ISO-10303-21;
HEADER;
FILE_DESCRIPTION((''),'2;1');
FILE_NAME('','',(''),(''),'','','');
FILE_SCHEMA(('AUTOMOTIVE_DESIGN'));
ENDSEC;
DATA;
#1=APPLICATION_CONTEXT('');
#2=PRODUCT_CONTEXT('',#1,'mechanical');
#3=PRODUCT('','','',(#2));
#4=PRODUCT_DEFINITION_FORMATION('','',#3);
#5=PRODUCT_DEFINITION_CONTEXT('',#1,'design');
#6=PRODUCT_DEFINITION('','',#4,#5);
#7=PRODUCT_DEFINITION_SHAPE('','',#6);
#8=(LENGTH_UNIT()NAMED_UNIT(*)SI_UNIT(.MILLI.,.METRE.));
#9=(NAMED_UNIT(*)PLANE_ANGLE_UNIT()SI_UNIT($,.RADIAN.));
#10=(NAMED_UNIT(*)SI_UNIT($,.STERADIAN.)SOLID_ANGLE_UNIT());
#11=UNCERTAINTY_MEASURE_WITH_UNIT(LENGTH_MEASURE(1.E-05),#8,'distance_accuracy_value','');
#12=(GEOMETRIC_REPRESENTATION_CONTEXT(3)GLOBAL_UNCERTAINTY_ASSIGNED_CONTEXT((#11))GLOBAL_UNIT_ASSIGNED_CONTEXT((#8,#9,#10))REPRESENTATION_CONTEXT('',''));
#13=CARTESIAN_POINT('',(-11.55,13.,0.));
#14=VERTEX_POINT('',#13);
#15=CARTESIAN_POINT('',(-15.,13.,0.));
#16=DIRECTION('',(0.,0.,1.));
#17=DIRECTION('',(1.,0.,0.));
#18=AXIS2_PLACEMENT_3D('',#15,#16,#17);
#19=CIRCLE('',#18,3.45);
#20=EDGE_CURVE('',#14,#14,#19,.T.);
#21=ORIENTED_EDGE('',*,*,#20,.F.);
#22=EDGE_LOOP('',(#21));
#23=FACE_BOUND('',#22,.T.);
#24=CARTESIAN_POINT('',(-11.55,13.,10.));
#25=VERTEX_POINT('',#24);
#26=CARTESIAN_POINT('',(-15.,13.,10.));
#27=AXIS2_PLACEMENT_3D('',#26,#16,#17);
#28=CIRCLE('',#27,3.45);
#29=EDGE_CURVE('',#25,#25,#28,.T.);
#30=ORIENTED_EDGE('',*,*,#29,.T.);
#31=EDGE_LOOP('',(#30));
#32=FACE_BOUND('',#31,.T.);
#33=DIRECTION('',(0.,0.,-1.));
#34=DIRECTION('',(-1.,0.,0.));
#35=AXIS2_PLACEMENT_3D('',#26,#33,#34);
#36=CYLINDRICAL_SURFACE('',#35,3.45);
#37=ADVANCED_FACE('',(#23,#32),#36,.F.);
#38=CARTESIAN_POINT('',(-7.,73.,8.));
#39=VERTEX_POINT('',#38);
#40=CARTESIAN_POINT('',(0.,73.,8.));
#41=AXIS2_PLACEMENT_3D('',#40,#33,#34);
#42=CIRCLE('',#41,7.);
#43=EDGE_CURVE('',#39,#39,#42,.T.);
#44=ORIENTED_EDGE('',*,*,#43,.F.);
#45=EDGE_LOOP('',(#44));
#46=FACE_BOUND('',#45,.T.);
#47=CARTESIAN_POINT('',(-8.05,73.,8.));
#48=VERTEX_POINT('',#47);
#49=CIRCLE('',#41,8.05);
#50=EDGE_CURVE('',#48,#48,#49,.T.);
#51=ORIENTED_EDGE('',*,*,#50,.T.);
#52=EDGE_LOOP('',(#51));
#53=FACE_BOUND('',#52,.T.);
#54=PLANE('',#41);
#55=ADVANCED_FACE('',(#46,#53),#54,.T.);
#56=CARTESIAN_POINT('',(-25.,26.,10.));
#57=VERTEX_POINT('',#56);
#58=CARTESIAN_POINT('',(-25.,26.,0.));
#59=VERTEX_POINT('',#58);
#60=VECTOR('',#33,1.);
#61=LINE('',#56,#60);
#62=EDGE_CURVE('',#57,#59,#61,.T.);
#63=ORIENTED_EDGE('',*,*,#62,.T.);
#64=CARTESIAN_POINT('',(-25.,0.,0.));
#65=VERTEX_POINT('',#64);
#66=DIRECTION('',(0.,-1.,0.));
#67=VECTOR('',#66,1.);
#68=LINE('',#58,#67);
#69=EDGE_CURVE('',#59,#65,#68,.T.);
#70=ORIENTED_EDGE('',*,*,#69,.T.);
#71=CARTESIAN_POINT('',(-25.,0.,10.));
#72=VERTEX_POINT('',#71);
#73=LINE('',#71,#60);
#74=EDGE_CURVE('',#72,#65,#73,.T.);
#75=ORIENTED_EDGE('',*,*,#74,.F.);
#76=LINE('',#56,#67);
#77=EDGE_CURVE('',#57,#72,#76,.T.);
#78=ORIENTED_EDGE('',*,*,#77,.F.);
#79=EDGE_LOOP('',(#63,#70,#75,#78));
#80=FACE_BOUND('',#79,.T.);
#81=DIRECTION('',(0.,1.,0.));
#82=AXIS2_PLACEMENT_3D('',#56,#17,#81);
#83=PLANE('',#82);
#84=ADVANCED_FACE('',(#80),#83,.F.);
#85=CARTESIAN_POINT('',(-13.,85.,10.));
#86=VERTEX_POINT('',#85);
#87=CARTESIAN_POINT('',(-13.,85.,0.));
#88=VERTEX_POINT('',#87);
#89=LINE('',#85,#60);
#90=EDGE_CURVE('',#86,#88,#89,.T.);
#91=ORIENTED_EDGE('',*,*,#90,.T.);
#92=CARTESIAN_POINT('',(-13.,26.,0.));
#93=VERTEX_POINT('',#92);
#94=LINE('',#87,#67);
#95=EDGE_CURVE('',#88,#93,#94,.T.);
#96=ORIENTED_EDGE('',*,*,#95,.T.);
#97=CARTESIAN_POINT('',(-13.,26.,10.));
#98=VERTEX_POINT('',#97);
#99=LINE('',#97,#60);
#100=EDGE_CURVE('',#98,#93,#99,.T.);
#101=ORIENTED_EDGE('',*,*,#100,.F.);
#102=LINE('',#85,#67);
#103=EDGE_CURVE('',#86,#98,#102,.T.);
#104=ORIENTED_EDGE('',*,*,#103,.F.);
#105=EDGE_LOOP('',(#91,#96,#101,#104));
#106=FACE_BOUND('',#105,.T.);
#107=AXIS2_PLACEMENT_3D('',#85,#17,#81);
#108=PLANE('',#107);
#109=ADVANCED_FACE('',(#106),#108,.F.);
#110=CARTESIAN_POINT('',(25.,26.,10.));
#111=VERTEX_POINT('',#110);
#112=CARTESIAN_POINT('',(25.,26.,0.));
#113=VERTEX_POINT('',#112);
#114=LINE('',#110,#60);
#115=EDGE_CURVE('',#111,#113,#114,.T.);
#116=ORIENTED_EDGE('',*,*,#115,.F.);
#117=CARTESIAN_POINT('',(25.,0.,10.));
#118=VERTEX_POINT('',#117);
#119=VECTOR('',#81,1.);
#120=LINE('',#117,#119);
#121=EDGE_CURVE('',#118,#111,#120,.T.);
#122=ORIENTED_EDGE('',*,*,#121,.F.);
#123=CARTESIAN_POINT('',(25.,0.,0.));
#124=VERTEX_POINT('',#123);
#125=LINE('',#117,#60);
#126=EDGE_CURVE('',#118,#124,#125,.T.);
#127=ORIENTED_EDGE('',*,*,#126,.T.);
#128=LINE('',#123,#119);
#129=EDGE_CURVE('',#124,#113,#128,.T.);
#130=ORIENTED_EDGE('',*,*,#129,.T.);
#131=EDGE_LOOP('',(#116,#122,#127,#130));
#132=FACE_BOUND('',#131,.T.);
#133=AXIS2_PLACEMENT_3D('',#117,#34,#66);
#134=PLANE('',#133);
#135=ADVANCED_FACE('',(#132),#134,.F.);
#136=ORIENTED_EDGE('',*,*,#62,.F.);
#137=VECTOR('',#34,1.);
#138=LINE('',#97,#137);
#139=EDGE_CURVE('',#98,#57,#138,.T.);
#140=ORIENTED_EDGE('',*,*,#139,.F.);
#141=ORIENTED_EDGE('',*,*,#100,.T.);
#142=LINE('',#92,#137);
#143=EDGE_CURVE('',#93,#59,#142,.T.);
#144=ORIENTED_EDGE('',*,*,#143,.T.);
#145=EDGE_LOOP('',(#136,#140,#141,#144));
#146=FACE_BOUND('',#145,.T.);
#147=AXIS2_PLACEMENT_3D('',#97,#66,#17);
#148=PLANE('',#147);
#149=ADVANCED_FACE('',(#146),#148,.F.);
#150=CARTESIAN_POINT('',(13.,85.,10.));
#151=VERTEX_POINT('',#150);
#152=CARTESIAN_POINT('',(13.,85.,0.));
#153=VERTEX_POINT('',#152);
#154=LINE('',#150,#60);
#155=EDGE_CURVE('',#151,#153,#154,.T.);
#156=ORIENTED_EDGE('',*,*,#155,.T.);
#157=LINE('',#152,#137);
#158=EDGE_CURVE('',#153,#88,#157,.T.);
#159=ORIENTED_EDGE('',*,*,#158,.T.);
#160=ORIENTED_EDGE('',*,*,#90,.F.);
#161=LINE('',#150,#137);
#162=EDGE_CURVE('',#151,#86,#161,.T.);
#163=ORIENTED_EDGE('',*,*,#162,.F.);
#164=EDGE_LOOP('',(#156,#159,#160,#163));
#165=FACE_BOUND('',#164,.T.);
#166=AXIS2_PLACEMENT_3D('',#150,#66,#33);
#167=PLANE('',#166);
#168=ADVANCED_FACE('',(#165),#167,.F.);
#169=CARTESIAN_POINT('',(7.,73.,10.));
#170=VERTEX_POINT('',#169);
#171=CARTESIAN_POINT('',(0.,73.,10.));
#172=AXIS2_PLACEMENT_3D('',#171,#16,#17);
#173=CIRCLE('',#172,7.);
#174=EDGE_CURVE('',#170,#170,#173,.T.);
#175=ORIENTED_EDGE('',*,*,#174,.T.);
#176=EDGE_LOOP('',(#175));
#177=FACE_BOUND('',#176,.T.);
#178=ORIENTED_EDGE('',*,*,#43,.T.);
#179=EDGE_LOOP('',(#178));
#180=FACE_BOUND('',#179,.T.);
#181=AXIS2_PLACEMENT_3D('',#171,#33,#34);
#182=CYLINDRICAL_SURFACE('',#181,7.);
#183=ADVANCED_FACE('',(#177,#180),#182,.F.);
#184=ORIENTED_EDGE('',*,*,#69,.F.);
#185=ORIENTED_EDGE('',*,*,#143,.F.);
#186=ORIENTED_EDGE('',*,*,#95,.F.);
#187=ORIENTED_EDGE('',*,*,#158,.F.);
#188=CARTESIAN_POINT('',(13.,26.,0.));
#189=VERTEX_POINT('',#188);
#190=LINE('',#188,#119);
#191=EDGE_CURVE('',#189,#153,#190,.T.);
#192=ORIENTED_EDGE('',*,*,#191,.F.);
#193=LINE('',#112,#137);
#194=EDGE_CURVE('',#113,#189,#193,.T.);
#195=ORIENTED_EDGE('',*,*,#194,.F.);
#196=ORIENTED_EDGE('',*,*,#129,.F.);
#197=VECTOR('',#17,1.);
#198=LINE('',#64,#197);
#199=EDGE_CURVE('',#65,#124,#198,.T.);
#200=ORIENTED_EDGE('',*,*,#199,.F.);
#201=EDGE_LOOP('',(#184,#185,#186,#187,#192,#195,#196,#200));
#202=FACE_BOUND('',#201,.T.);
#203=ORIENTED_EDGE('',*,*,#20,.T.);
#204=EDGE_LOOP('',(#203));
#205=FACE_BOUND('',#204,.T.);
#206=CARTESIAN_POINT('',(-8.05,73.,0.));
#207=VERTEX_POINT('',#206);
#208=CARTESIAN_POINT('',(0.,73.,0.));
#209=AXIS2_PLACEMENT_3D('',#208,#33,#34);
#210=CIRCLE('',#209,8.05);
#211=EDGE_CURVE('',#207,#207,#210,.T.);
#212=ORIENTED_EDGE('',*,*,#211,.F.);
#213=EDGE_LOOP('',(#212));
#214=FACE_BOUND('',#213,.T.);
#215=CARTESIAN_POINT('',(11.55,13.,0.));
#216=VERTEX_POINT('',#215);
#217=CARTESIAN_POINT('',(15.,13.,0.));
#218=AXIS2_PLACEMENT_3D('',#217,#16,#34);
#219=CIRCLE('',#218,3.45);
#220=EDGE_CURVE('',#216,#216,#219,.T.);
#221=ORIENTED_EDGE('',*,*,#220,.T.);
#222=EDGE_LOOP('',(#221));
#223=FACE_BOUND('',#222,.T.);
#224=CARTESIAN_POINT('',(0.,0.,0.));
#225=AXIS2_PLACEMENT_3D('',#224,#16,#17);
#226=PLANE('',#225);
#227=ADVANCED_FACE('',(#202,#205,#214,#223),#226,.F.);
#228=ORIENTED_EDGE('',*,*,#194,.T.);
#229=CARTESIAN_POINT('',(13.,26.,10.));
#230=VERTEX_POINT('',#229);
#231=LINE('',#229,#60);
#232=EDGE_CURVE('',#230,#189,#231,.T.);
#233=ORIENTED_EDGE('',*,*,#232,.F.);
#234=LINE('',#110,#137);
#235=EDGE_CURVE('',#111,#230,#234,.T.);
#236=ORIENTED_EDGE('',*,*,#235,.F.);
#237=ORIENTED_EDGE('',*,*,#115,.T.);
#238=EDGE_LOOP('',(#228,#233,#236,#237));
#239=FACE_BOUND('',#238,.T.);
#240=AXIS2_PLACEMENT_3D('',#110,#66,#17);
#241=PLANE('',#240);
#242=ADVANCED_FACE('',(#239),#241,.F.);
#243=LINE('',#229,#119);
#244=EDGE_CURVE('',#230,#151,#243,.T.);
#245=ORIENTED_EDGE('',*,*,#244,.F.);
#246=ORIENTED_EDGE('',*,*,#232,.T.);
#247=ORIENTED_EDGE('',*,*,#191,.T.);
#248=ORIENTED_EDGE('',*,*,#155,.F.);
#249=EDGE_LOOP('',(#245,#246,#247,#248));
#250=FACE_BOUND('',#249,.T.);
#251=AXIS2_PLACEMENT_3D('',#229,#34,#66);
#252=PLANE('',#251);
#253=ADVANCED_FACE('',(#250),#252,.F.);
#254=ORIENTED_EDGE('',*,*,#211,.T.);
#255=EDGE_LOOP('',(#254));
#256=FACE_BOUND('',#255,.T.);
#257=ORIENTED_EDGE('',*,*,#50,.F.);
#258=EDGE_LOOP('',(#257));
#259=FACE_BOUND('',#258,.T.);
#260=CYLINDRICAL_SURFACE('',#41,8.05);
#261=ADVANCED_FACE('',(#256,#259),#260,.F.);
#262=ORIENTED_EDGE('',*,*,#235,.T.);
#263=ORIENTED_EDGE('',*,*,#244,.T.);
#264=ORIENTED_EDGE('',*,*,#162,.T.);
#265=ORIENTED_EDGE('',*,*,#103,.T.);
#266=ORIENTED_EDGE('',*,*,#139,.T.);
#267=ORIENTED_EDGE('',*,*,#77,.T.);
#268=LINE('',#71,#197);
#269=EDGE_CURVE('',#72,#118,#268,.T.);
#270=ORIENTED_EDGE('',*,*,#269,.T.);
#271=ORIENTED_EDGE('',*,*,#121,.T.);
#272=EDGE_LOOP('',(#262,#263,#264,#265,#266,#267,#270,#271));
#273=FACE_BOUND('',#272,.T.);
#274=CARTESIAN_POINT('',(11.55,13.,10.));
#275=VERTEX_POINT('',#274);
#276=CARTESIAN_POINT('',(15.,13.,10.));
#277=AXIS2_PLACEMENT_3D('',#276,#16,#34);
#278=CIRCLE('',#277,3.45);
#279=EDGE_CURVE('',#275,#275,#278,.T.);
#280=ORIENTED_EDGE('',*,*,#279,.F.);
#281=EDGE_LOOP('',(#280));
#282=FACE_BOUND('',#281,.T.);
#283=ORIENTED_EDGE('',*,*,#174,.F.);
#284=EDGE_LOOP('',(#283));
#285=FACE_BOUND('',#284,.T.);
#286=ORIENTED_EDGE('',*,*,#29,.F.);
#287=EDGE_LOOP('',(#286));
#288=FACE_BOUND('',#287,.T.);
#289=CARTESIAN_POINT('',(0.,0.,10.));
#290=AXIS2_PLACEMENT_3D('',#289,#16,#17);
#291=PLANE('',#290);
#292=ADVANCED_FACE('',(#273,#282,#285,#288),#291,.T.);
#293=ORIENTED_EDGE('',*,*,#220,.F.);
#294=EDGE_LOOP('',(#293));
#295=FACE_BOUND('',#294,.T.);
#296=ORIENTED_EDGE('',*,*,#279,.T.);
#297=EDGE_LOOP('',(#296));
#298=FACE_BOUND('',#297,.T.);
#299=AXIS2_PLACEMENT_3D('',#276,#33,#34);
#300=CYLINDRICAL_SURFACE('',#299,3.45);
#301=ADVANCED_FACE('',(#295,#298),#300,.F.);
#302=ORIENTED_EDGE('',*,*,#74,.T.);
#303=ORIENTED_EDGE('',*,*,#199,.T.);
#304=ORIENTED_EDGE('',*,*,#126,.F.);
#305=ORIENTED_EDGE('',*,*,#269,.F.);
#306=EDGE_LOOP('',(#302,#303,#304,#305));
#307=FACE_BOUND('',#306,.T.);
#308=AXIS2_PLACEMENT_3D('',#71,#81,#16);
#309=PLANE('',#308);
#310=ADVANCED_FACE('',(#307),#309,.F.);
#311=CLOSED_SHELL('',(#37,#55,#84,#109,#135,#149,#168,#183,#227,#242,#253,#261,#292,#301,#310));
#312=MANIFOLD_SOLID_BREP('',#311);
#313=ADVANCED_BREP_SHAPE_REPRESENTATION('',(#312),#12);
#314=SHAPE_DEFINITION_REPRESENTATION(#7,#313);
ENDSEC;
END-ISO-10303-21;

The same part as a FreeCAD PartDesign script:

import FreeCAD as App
import Part
import Sketcher
Q = App.Units.Quantity

doc = App.newDocument("Part")
body = doc.addObject("PartDesign::Body", "Body")

# Sketch on XY plane
sketch1 = doc.addObject("Sketcher::SketchObject", "Sketch")
body.addObject(sketch1)
sketch1.AttachmentSupport = (doc.XY_Plane, [""])
sketch1.MapMode = "FlatFace"
sketch1.addGeometry(Part.LineSegment(App.Vector(-25, 0, 0), App.Vector(25, 0, 0)), False)
sketch1.addGeometry(Part.LineSegment(App.Vector(25, 0, 0), App.Vector(25, 26, 0)), False)
sketch1.addGeometry(Part.LineSegment(App.Vector(25, 26, 0), App.Vector(13, 26, 0)), False)
sketch1.addGeometry(Part.LineSegment(App.Vector(13, 26, 0), App.Vector(13, 85, 0)), False)
sketch1.addGeometry(Part.LineSegment(App.Vector(13, 85, 0), App.Vector(-13, 85, 0)), False)
sketch1.addGeometry(Part.LineSegment(App.Vector(-13, 85, 0), App.Vector(-13, 26, 0)), False)
sketch1.addGeometry(Part.LineSegment(App.Vector(-13, 26, 0), App.Vector(-25, 26, 0)), False)
sketch1.addGeometry(Part.LineSegment(App.Vector(-25, 26, 0), App.Vector(-25, 0, 0)), False)
sketch1.addGeometry(Part.Circle(App.Vector(-15, 13, 0), App.Vector(0, 0, 1), 3.5), False)
sketch1.addGeometry(Part.Circle(App.Vector(15, 13, 0), App.Vector(0, 0, 1), 3.5), False)
sketch1.addGeometry(Part.Circle(App.Vector(0, 73, 0), App.Vector(0, 0, 1), 7), False)
sketch1.addConstraint(Sketcher.Constraint("Coincident", 0, 2, 1, 1))
sketch1.addConstraint(Sketcher.Constraint("Coincident", 1, 2, 2, 1))
sketch1.addConstraint(Sketcher.Constraint("Coincident", 2, 2, 3, 1))
sketch1.addConstraint(Sketcher.Constraint("Coincident", 3, 2, 4, 1))
sketch1.addConstraint(Sketcher.Constraint("Coincident", 4, 2, 5, 1))
sketch1.addConstraint(Sketcher.Constraint("Coincident", 5, 2, 6, 1))
sketch1.addConstraint(Sketcher.Constraint("Coincident", 6, 2, 7, 1))
sketch1.addConstraint(Sketcher.Constraint("Coincident", 7, 2, 0, 1))
sketch1.addConstraint(Sketcher.Constraint("Horizontal", 0))
sketch1.addConstraint(Sketcher.Constraint("Vertical", 1))
sketch1.addConstraint(Sketcher.Constraint("Horizontal", 2))
sketch1.addConstraint(Sketcher.Constraint("Vertical", 3))
sketch1.addConstraint(Sketcher.Constraint("Horizontal", 4))
sketch1.addConstraint(Sketcher.Constraint("Vertical", 5))
sketch1.addConstraint(Sketcher.Constraint("Horizontal", 6))
sketch1.addConstraint(Sketcher.Constraint("Vertical", 7))
sketch1.addConstraint(Sketcher.Constraint("Equal", 8, 9))
sketch1.addConstraint(Sketcher.Constraint("Symmetric", 0, 2, 7, 2, -1, 1))
sketch1.addConstraint(Sketcher.Constraint("Symmetric", 8, 3, 9, 3, -2))
sketch1.addConstraint(Sketcher.Constraint("Symmetric", 2, 2, 5, 2, -2))
sketch1.addConstraint(Sketcher.Constraint("PointOnObject", 10, 3, -2))
sketch1.addConstraint(Sketcher.Constraint("Equal", 4, 1))
sketch1.addConstraint(Sketcher.Constraint("Diameter", 10, Q("14 mm")))
sketch1.addConstraint(Sketcher.Constraint("Diameter", 8, Q("6.9 mm")))
sketch1.addConstraint(Sketcher.Constraint("DistanceX", 0, 1, 0, 2, Q("50 mm")))
sketch1.addConstraint(Sketcher.Constraint("DistanceX", 2, 2, 2, 1, Q("12 mm")))
sketch1.addConstraint(Sketcher.Constraint("DistanceY", 3, 1, 3, 2, Q("59 mm")))
sketch1.addConstraint(Sketcher.Constraint("DistanceX", 8, 3, -1, 1, Q("15 mm")))
sketch1.addConstraint(Sketcher.Constraint("DistanceY", -1, 1, 8, 3, Q("13 mm")))
sketch1.addConstraint(Sketcher.Constraint("DistanceY", -1, 1, 10, 3, Q("73 mm")))
pad1 = doc.addObject("PartDesign::Pad", "Pad")
body.addObject(pad1)
pad1.Profile = sketch1
pad1.Length = 10

# Sketch on XY plane
sketch2 = doc.addObject("Sketcher::SketchObject", "Sketch001")
body.addObject(sketch2)
sketch2.AttachmentSupport = (doc.XY_Plane, [""])
sketch2.MapMode = "FlatFace"
sketch2.addGeometry(Part.Circle(App.Vector(0, 73, 0), App.Vector(0, 0, 1), 8.1), False)
sketch2.addGeometry(Part.Circle(App.Vector(0, 73, 0), App.Vector(0, 0, 1), 4), False)
sketch2.addConstraint(Sketcher.Constraint("Coincident", 1, 3, 0, 3))
sketch2.addConstraint(Sketcher.Constraint("PointOnObject", 0, 3, -2))
sketch2.addConstraint(Sketcher.Constraint("Diameter", 1, Q("8 mm")))
sketch2.addConstraint(Sketcher.Constraint("Diameter", 0, Q("16.1 mm")))
sketch2.addConstraint(Sketcher.Constraint("DistanceY", -1, 1, 0, 3, Q("73 mm")))
pocket1 = doc.addObject("PartDesign::Pocket", "Pocket")
body.addObject(pocket1)
pocket1.Profile = sketch2
pocket1.Length = 8
pocket1.Reversed = True

doc.recompute()
